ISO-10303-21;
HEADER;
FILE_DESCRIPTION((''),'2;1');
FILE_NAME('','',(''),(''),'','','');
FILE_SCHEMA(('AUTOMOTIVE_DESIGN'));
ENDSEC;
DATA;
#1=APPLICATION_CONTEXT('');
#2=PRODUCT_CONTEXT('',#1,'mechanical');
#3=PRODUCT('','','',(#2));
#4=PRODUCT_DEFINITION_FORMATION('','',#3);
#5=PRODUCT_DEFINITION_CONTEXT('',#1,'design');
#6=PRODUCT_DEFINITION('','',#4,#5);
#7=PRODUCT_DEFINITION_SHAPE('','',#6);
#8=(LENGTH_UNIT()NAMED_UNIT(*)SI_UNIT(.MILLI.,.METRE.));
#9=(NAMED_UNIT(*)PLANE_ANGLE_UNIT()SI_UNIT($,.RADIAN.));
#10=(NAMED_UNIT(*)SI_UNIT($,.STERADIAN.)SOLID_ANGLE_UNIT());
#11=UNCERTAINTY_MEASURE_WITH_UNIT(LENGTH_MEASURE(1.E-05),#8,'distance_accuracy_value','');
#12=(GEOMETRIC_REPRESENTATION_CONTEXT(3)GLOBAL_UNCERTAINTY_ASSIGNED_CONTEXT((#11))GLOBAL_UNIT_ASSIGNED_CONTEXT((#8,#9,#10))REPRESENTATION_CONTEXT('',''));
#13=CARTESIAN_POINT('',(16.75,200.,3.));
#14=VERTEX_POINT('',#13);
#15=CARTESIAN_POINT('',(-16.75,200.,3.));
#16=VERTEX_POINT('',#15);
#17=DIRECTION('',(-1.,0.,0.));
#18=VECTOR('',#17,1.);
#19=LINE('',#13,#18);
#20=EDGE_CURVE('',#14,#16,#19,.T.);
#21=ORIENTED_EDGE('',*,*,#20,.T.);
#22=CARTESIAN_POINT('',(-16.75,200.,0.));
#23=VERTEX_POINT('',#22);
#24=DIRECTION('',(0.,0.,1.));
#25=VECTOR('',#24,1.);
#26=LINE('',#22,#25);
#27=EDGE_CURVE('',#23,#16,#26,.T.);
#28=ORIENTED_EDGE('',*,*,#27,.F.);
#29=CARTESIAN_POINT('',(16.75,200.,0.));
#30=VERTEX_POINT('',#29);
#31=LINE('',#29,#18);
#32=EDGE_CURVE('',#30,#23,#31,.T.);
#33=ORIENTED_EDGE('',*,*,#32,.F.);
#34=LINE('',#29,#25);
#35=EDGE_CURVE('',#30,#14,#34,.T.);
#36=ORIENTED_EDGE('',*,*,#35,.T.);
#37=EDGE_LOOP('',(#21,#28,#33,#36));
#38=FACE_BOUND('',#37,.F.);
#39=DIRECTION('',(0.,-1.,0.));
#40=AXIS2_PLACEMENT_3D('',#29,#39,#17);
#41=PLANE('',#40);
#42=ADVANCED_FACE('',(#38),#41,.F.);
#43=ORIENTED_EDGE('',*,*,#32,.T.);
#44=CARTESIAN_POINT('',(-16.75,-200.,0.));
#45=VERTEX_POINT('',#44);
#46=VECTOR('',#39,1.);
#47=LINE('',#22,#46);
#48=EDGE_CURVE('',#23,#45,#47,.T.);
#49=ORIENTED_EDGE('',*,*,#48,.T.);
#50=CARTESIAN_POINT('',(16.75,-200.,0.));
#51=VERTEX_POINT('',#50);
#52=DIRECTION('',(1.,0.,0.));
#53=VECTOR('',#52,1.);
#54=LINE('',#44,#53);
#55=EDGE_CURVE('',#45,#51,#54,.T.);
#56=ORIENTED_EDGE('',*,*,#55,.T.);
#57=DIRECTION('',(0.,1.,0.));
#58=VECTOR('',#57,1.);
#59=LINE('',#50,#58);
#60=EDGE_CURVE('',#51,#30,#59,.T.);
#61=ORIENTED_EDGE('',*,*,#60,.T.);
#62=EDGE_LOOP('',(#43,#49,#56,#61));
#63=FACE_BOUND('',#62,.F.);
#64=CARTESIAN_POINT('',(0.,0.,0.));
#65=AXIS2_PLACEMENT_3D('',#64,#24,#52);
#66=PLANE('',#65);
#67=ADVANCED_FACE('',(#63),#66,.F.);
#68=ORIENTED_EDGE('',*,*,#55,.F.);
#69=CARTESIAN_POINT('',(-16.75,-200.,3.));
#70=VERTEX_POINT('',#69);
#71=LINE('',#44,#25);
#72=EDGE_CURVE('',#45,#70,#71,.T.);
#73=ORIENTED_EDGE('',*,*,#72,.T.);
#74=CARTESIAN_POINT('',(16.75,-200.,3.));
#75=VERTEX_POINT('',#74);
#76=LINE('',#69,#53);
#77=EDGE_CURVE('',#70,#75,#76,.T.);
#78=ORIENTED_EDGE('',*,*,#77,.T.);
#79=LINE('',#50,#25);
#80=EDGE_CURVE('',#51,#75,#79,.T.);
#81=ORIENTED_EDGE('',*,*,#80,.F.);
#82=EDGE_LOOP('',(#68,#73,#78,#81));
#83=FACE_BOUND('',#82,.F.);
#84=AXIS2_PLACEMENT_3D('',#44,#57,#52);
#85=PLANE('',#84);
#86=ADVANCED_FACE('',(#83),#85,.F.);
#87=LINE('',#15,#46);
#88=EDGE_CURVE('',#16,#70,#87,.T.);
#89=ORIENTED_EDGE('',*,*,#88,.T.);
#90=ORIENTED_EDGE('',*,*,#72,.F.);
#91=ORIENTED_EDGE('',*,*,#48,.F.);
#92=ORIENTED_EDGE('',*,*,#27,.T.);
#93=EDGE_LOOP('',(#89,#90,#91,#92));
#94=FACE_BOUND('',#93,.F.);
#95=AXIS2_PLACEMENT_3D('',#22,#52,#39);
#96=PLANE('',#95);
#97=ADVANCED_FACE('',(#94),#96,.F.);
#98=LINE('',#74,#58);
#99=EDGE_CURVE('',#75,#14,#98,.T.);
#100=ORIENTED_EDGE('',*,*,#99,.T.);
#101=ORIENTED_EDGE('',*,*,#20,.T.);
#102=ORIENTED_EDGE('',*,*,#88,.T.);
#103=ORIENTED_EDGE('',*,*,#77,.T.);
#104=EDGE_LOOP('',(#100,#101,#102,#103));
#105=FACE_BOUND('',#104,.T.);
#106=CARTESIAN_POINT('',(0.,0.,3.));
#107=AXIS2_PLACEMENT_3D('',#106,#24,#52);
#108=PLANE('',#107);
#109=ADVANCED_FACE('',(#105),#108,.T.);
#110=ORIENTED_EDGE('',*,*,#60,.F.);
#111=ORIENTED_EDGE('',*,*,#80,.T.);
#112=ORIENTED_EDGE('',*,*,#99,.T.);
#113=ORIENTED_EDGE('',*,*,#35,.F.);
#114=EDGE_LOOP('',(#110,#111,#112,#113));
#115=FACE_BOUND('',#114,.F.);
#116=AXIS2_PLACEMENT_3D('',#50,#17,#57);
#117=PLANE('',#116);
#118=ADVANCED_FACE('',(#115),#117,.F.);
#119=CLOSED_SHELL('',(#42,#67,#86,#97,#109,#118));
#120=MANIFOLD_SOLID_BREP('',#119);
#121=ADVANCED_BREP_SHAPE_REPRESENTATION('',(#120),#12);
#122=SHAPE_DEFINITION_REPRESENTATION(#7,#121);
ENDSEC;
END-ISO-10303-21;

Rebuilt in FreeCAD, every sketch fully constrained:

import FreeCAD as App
import Part
import Sketcher

doc = App.newDocument("Part")
body = doc.addObject("PartDesign::Body", "Body")

# Sketch on XY plane
sketch1 = body.newObject("Sketcher::SketchObject", "Sketch")
sketch1.AttachmentSupport = (doc.getObject("XY_Plane"), [""])
sketch1.MapMode = "FlatFace"
sketch1.addGeometry([
    Part.LineSegment(App.Vector(-17, 200, 0), App.Vector(-17, -200, 0)),
    Part.LineSegment(App.Vector(-17, -200, 0), App.Vector(17, -200, 0)),
    Part.LineSegment(App.Vector(17, -200, 0), App.Vector(17, 200, 0)),
    Part.LineSegment(App.Vector(17, 200, 0), App.Vector(-17, 200, 0)),
], False)
sketch1.addConstraint([
    Sketcher.Constraint("Coincident", 0, 2, 1, 1),
    Sketcher.Constraint("Coincident", 1, 2, 2, 1),
    Sketcher.Constraint("Coincident", 2, 2, 3, 1),
    Sketcher.Constraint("Coincident", 3, 2, 0, 1),
    Sketcher.Constraint("Vertical", 0),
    Sketcher.Constraint("Horizontal", 1),
    Sketcher.Constraint("Vertical", 2),
    Sketcher.Constraint("Horizontal", 3),
    Sketcher.Constraint("Symmetric", 0, 2, 2, 2, -1, 1),
    Sketcher.Constraint("DistanceY", 0, 2, 0, 1, 400.0),
    Sketcher.Constraint("DistanceX", 1, 1, 1, 2, 33.5),
])
pad1 = body.newObject("PartDesign::Pad", "Pad")
pad1.Profile = sketch1
pad1.Length = 3

doc.recompute()
